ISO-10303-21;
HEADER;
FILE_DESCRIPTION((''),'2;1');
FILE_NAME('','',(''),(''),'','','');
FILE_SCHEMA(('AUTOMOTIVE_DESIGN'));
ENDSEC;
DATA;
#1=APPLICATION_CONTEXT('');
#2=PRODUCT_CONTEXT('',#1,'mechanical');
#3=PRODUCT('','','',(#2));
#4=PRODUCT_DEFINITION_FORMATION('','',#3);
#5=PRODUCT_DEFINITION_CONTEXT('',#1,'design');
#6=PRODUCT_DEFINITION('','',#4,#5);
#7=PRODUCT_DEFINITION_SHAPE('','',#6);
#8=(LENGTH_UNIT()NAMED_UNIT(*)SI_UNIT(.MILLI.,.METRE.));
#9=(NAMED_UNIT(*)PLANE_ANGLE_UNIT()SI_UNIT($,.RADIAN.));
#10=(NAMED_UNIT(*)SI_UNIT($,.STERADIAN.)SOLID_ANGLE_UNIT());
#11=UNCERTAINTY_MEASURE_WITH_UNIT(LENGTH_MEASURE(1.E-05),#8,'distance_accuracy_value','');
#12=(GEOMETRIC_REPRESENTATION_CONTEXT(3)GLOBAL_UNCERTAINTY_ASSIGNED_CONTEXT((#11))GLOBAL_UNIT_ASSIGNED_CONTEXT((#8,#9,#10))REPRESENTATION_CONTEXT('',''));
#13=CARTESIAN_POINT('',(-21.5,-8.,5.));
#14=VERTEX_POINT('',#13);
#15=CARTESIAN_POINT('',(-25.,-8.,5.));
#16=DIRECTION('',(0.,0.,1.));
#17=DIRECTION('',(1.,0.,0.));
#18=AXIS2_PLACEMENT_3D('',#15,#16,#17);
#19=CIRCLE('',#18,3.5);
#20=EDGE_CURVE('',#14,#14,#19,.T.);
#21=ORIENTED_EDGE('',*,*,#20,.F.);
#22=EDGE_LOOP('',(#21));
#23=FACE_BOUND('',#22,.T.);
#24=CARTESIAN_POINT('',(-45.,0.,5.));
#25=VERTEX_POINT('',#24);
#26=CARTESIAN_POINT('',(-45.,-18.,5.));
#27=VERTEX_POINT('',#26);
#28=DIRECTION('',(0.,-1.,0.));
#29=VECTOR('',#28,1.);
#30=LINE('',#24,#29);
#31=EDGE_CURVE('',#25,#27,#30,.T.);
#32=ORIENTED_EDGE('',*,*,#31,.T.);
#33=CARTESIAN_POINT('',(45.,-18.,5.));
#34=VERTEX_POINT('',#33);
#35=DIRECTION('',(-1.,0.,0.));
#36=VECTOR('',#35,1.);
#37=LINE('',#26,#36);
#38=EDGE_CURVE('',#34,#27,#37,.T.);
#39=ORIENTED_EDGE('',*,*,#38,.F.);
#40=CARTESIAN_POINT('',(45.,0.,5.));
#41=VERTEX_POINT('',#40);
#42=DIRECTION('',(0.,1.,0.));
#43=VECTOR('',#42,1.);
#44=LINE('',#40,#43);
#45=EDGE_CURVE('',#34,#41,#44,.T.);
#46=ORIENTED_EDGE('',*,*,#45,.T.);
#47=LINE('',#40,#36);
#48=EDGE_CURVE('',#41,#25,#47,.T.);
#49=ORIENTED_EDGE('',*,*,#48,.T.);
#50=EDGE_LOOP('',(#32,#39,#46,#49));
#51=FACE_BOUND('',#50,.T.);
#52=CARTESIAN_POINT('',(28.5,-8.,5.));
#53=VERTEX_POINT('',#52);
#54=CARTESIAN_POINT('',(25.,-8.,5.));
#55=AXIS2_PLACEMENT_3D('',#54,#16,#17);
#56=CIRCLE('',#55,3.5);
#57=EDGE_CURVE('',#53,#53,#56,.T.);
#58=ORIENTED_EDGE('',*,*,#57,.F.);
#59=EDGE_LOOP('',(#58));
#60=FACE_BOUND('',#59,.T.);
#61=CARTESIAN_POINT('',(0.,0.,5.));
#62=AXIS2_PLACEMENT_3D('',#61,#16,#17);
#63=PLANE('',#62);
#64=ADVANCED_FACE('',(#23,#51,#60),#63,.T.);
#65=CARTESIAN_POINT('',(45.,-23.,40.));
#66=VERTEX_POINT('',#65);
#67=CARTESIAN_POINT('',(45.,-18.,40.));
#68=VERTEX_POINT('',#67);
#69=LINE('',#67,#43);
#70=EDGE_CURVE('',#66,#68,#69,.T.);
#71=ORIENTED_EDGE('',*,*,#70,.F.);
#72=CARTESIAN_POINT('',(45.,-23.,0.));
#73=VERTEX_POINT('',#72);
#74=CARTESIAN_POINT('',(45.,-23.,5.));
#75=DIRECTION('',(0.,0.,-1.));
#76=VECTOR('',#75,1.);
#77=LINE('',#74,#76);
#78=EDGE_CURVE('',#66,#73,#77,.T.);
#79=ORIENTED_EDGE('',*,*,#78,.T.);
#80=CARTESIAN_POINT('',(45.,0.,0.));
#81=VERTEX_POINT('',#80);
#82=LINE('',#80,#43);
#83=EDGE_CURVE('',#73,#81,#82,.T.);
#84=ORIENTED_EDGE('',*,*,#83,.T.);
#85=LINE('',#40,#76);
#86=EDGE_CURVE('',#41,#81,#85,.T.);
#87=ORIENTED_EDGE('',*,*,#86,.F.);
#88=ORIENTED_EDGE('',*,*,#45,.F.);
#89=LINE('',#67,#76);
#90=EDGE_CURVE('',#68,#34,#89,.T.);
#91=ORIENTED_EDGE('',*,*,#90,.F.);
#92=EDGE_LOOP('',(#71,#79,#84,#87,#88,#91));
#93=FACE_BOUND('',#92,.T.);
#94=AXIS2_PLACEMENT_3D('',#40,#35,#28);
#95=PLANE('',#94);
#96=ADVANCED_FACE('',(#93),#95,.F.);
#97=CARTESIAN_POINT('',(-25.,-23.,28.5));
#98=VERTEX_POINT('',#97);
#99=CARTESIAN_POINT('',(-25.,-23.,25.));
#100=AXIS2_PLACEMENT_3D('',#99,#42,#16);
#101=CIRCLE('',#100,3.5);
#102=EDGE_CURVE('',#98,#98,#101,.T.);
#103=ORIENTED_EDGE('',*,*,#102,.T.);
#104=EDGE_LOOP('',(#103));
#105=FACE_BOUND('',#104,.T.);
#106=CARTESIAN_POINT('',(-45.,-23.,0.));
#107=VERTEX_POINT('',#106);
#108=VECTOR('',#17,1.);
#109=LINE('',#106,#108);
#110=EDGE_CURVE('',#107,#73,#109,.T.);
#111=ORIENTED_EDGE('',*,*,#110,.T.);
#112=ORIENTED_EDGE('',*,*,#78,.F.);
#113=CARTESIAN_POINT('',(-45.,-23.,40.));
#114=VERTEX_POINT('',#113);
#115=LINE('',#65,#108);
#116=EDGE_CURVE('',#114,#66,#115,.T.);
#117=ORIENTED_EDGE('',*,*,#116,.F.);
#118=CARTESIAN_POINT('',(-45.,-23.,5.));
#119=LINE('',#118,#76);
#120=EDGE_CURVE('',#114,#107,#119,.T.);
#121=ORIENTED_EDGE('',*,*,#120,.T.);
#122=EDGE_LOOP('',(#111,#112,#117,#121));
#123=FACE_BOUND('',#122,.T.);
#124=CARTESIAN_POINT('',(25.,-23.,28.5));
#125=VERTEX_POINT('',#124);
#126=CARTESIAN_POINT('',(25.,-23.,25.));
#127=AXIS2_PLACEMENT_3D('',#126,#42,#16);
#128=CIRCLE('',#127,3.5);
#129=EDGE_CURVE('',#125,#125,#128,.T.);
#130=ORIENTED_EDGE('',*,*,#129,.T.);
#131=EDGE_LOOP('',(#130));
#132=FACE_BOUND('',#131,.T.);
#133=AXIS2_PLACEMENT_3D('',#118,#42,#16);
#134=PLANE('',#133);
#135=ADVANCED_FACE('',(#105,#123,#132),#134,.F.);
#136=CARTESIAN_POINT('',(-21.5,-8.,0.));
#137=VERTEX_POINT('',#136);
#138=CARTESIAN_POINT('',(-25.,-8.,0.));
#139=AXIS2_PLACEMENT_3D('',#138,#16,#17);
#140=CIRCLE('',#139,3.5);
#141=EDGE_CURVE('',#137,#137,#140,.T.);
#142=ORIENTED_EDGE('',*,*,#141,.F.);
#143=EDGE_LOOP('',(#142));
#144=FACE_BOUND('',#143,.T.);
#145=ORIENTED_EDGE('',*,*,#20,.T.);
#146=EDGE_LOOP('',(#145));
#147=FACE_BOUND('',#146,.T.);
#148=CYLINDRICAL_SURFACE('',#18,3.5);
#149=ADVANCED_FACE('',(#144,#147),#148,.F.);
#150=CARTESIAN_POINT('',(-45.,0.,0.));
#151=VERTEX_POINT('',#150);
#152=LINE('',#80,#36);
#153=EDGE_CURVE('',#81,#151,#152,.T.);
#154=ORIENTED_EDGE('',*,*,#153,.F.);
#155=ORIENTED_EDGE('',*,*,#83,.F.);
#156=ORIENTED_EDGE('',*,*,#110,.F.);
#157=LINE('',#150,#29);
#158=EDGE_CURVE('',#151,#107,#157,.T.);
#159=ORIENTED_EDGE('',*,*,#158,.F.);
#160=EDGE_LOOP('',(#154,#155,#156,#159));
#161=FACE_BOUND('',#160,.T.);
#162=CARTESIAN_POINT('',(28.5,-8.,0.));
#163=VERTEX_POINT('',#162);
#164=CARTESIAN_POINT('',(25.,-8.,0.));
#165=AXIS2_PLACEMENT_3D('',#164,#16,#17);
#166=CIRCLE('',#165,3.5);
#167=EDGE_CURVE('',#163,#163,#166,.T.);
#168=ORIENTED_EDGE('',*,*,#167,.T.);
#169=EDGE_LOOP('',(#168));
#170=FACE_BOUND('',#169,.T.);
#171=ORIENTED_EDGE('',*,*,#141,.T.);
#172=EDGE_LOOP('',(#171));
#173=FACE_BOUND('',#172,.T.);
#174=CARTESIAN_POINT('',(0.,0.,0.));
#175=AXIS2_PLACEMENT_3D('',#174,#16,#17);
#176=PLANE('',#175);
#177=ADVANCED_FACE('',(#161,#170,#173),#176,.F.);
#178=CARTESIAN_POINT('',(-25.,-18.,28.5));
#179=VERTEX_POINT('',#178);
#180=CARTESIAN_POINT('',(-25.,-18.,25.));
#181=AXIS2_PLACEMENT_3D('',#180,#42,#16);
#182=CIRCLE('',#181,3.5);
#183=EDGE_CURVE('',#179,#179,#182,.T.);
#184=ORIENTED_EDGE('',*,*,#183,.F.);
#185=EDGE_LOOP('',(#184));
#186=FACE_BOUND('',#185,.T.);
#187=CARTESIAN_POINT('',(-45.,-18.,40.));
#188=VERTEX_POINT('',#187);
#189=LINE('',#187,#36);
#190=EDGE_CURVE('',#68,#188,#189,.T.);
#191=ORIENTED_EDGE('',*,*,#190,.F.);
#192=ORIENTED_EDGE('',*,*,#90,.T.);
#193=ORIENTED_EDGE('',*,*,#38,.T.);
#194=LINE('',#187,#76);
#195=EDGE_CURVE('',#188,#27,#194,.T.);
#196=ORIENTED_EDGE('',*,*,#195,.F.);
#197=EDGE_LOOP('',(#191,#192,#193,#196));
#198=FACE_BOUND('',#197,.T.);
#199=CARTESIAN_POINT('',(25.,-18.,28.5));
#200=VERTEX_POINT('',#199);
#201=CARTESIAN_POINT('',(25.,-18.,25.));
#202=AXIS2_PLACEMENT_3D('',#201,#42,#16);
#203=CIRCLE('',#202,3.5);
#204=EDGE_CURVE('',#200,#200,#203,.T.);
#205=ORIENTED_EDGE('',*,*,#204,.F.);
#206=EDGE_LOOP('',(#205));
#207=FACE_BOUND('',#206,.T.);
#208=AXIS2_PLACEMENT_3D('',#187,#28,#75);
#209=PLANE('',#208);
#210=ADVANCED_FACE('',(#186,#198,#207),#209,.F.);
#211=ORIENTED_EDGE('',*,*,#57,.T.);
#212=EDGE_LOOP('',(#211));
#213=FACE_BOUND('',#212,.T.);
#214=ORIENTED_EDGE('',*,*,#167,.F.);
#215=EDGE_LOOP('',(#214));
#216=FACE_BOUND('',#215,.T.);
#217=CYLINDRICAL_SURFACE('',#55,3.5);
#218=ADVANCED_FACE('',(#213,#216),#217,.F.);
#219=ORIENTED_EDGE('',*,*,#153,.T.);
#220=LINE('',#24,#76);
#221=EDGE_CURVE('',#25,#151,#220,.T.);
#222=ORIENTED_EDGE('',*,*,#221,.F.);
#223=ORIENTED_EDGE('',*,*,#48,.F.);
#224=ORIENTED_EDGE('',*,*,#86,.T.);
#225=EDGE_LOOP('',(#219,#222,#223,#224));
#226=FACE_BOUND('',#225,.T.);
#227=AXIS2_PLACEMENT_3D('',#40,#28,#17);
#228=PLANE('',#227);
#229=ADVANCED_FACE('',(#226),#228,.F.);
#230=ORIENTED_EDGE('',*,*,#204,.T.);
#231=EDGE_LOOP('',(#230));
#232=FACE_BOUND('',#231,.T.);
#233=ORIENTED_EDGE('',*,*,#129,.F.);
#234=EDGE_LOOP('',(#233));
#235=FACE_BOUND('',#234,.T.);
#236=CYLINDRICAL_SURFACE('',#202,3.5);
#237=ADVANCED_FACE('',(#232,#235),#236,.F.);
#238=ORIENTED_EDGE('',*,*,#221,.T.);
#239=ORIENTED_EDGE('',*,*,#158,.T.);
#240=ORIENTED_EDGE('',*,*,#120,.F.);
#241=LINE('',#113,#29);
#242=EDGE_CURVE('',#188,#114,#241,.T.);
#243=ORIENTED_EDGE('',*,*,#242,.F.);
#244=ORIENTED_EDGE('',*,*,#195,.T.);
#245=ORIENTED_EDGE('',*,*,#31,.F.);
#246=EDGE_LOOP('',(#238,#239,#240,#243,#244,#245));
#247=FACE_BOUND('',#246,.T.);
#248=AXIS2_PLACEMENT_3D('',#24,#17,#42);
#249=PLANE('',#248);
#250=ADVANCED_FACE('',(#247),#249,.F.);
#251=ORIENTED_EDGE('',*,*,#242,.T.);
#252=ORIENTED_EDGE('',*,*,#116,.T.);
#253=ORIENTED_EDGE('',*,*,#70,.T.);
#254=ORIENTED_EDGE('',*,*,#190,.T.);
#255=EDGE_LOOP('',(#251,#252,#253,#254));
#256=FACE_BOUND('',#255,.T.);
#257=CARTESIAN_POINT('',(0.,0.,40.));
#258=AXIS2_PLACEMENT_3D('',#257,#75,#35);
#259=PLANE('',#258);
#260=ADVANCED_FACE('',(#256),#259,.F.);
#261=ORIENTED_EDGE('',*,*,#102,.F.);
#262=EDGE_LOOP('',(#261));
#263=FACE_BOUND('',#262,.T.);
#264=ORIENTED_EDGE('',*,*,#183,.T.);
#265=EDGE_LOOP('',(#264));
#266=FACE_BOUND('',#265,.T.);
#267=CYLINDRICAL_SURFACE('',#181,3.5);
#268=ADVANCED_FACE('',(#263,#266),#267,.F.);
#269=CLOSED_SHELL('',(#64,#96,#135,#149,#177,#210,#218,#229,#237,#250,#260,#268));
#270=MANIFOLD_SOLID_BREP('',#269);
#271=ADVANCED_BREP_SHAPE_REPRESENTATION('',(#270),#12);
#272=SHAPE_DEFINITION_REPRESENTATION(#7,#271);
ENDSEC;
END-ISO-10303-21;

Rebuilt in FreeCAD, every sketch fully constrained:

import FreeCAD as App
import Part
import Sketcher

V = App.Vector


def add_polygon(sketch, points):
    """Adds a closed chain of lines whose ends are joined by coincident constraints."""
    first, n = sketch.GeometryCount, len(points)
    for a, b in zip(points, points[1:] + points[:1]):
        sketch.addGeometry(Part.LineSegment(App.Vector(*a, 0), App.Vector(*b, 0)), False)
    for i in range(n):
        sketch.addConstraint(Sketcher.Constraint("Coincident", first + i, 2, first + (i + 1) % n, 1))

doc = App.newDocument("Part")
body = doc.addObject("PartDesign::Body", "Body")

# Sketch on XY plane
sketch1 = doc.addObject("Sketcher::SketchObject", "Sketch")
body.addObject(sketch1)
sketch1.AttachmentSupport = (doc.XY_Plane, [""])
sketch1.MapMode = "FlatFace"
add_polygon(sketch1, [(-45, 0), (-45, -23), (45, -23), (45, 0)])  # lines 0-3
sketch1.addConstraint([
    Sketcher.Constraint("Vertical", 0),
    Sketcher.Constraint("Horizontal", 1),
    Sketcher.Constraint("Vertical", 2),
    Sketcher.Constraint("Horizontal", 3),
    Sketcher.Constraint("Symmetric", 2, 2, 3, 2, -1, 1),
    Sketcher.Constraint("DistanceX", 1, 1, 1, 2, 90.0),
    Sketcher.Constraint("DistanceY", 0, 2, 0, 1, 23.0),
])
pad1 = doc.addObject("PartDesign::Pad", "Pad")
body.addObject(pad1)
pad1.Profile = sketch1
pad1.Length = 5

# Sketch on XY plane
sketch2 = doc.addObject("Sketcher::SketchObject", "Sketch001")
body.addObject(sketch2)
sketch2.AttachmentSupport = (doc.XY_Plane, [""])
sketch2.MapMode = "FlatFace"
sketch2.AttachmentOffset = App.Placement(V(0, 0, 5), App.Rotation())
add_polygon(sketch2, [(-45, -18), (-45, -23), (45, -23), (45, -18)])  # lines 0-3
sketch2.addConstraint([
    Sketcher.Constraint("Vertical", 0),
    Sketcher.Constraint("Horizontal", 1),
    Sketcher.Constraint("Vertical", 2),
    Sketcher.Constraint("Horizontal", 3),
    Sketcher.Constraint("DistanceX", 1, 1, 1, 2, 90.0),
    Sketcher.Constraint("DistanceY", 0, 2, 0, 1, 5.0),
    Sketcher.Constraint("DistanceX", 0, 2, -1, 1, 45.0),
    Sketcher.Constraint("DistanceY", 0, 2, -1, 1, 23.0),
])
pad2 = doc.addObject("PartDesign::Pad", "Pad001")
body.addObject(pad2)
pad2.Profile = sketch2
pad2.Length = 35

# Sketch on XY plane
sketch3 = doc.addObject("Sketcher::SketchObject", "Sketch002")
body.addObject(sketch3)
sketch3.AttachmentSupport = (doc.XY_Plane, [""])
sketch3.MapMode = "FlatFace"
sketch3.AttachmentOffset = App.Placement(V(0, 0, 5), App.Rotation())
sketch3.addGeometry([
    Part.Circle(V(-25, -8, 0), V(0, 0, 1), 3.5),
    Part.Circle(V(25, -8, 0), V(0, 0, 1), 3.5),
], False)
sketch3.addConstraint([
    Sketcher.Constraint("Equal", 0, 1),
    Sketcher.Constraint("Symmetric", 0, 3, 1, 3, -2),
    Sketcher.Constraint("Diameter", 0, 7.0),
    Sketcher.Constraint("DistanceX", 0, 3, -1, 1, 25.0),
    Sketcher.Constraint("DistanceY", 0, 3, -1, 1, 8.0),
])
doc.recompute()
hole = doc.addObject("PartDesign::Hole", "Hole")
body.addObject(hole)
hole.Profile = sketch3
hole.ThreadType = "None"
hole.Diameter = 7
hole.DepthType = "ThroughAll"

# Sketch on XZ plane
sketch4 = doc.addObject("Sketcher::SketchObject", "Sketch003")
body.addObject(sketch4)
sketch4.AttachmentSupport = (doc.XZ_Plane, [""])
sketch4.MapMode = "FlatFace"
sketch4.AttachmentOffset = App.Placement(V(0, 0, 18), App.Rotation())
sketch4.addGeometry([
    Part.Circle(V(-25, 25, 0), V(0, 0, 1), 3.5),
    Part.Circle(V(25, 25, 0), V(0, 0, 1), 3.5),
], False)
sketch4.addConstraint([
    Sketcher.Constraint("Equal", 0, 1),
    Sketcher.Constraint("Symmetric", 0, 3, 1, 3, -2),
    Sketcher.Constraint("Diameter", 0, 7.0),
    Sketcher.Constraint("DistanceX", 0, 3, -1, 1, 25.0),
    Sketcher.Constraint("DistanceY", -1, 1, 0, 3, 25.0),
])
doc.recompute()
hole2 = doc.addObject("PartDesign::Hole", "Hole001")
body.addObject(hole2)
hole2.Profile = sketch4
hole2.ThreadType = "None"
hole2.Diameter = 7
hole2.DepthType = "ThroughAll"
hole2.Reversed = True

doc.recompute()
